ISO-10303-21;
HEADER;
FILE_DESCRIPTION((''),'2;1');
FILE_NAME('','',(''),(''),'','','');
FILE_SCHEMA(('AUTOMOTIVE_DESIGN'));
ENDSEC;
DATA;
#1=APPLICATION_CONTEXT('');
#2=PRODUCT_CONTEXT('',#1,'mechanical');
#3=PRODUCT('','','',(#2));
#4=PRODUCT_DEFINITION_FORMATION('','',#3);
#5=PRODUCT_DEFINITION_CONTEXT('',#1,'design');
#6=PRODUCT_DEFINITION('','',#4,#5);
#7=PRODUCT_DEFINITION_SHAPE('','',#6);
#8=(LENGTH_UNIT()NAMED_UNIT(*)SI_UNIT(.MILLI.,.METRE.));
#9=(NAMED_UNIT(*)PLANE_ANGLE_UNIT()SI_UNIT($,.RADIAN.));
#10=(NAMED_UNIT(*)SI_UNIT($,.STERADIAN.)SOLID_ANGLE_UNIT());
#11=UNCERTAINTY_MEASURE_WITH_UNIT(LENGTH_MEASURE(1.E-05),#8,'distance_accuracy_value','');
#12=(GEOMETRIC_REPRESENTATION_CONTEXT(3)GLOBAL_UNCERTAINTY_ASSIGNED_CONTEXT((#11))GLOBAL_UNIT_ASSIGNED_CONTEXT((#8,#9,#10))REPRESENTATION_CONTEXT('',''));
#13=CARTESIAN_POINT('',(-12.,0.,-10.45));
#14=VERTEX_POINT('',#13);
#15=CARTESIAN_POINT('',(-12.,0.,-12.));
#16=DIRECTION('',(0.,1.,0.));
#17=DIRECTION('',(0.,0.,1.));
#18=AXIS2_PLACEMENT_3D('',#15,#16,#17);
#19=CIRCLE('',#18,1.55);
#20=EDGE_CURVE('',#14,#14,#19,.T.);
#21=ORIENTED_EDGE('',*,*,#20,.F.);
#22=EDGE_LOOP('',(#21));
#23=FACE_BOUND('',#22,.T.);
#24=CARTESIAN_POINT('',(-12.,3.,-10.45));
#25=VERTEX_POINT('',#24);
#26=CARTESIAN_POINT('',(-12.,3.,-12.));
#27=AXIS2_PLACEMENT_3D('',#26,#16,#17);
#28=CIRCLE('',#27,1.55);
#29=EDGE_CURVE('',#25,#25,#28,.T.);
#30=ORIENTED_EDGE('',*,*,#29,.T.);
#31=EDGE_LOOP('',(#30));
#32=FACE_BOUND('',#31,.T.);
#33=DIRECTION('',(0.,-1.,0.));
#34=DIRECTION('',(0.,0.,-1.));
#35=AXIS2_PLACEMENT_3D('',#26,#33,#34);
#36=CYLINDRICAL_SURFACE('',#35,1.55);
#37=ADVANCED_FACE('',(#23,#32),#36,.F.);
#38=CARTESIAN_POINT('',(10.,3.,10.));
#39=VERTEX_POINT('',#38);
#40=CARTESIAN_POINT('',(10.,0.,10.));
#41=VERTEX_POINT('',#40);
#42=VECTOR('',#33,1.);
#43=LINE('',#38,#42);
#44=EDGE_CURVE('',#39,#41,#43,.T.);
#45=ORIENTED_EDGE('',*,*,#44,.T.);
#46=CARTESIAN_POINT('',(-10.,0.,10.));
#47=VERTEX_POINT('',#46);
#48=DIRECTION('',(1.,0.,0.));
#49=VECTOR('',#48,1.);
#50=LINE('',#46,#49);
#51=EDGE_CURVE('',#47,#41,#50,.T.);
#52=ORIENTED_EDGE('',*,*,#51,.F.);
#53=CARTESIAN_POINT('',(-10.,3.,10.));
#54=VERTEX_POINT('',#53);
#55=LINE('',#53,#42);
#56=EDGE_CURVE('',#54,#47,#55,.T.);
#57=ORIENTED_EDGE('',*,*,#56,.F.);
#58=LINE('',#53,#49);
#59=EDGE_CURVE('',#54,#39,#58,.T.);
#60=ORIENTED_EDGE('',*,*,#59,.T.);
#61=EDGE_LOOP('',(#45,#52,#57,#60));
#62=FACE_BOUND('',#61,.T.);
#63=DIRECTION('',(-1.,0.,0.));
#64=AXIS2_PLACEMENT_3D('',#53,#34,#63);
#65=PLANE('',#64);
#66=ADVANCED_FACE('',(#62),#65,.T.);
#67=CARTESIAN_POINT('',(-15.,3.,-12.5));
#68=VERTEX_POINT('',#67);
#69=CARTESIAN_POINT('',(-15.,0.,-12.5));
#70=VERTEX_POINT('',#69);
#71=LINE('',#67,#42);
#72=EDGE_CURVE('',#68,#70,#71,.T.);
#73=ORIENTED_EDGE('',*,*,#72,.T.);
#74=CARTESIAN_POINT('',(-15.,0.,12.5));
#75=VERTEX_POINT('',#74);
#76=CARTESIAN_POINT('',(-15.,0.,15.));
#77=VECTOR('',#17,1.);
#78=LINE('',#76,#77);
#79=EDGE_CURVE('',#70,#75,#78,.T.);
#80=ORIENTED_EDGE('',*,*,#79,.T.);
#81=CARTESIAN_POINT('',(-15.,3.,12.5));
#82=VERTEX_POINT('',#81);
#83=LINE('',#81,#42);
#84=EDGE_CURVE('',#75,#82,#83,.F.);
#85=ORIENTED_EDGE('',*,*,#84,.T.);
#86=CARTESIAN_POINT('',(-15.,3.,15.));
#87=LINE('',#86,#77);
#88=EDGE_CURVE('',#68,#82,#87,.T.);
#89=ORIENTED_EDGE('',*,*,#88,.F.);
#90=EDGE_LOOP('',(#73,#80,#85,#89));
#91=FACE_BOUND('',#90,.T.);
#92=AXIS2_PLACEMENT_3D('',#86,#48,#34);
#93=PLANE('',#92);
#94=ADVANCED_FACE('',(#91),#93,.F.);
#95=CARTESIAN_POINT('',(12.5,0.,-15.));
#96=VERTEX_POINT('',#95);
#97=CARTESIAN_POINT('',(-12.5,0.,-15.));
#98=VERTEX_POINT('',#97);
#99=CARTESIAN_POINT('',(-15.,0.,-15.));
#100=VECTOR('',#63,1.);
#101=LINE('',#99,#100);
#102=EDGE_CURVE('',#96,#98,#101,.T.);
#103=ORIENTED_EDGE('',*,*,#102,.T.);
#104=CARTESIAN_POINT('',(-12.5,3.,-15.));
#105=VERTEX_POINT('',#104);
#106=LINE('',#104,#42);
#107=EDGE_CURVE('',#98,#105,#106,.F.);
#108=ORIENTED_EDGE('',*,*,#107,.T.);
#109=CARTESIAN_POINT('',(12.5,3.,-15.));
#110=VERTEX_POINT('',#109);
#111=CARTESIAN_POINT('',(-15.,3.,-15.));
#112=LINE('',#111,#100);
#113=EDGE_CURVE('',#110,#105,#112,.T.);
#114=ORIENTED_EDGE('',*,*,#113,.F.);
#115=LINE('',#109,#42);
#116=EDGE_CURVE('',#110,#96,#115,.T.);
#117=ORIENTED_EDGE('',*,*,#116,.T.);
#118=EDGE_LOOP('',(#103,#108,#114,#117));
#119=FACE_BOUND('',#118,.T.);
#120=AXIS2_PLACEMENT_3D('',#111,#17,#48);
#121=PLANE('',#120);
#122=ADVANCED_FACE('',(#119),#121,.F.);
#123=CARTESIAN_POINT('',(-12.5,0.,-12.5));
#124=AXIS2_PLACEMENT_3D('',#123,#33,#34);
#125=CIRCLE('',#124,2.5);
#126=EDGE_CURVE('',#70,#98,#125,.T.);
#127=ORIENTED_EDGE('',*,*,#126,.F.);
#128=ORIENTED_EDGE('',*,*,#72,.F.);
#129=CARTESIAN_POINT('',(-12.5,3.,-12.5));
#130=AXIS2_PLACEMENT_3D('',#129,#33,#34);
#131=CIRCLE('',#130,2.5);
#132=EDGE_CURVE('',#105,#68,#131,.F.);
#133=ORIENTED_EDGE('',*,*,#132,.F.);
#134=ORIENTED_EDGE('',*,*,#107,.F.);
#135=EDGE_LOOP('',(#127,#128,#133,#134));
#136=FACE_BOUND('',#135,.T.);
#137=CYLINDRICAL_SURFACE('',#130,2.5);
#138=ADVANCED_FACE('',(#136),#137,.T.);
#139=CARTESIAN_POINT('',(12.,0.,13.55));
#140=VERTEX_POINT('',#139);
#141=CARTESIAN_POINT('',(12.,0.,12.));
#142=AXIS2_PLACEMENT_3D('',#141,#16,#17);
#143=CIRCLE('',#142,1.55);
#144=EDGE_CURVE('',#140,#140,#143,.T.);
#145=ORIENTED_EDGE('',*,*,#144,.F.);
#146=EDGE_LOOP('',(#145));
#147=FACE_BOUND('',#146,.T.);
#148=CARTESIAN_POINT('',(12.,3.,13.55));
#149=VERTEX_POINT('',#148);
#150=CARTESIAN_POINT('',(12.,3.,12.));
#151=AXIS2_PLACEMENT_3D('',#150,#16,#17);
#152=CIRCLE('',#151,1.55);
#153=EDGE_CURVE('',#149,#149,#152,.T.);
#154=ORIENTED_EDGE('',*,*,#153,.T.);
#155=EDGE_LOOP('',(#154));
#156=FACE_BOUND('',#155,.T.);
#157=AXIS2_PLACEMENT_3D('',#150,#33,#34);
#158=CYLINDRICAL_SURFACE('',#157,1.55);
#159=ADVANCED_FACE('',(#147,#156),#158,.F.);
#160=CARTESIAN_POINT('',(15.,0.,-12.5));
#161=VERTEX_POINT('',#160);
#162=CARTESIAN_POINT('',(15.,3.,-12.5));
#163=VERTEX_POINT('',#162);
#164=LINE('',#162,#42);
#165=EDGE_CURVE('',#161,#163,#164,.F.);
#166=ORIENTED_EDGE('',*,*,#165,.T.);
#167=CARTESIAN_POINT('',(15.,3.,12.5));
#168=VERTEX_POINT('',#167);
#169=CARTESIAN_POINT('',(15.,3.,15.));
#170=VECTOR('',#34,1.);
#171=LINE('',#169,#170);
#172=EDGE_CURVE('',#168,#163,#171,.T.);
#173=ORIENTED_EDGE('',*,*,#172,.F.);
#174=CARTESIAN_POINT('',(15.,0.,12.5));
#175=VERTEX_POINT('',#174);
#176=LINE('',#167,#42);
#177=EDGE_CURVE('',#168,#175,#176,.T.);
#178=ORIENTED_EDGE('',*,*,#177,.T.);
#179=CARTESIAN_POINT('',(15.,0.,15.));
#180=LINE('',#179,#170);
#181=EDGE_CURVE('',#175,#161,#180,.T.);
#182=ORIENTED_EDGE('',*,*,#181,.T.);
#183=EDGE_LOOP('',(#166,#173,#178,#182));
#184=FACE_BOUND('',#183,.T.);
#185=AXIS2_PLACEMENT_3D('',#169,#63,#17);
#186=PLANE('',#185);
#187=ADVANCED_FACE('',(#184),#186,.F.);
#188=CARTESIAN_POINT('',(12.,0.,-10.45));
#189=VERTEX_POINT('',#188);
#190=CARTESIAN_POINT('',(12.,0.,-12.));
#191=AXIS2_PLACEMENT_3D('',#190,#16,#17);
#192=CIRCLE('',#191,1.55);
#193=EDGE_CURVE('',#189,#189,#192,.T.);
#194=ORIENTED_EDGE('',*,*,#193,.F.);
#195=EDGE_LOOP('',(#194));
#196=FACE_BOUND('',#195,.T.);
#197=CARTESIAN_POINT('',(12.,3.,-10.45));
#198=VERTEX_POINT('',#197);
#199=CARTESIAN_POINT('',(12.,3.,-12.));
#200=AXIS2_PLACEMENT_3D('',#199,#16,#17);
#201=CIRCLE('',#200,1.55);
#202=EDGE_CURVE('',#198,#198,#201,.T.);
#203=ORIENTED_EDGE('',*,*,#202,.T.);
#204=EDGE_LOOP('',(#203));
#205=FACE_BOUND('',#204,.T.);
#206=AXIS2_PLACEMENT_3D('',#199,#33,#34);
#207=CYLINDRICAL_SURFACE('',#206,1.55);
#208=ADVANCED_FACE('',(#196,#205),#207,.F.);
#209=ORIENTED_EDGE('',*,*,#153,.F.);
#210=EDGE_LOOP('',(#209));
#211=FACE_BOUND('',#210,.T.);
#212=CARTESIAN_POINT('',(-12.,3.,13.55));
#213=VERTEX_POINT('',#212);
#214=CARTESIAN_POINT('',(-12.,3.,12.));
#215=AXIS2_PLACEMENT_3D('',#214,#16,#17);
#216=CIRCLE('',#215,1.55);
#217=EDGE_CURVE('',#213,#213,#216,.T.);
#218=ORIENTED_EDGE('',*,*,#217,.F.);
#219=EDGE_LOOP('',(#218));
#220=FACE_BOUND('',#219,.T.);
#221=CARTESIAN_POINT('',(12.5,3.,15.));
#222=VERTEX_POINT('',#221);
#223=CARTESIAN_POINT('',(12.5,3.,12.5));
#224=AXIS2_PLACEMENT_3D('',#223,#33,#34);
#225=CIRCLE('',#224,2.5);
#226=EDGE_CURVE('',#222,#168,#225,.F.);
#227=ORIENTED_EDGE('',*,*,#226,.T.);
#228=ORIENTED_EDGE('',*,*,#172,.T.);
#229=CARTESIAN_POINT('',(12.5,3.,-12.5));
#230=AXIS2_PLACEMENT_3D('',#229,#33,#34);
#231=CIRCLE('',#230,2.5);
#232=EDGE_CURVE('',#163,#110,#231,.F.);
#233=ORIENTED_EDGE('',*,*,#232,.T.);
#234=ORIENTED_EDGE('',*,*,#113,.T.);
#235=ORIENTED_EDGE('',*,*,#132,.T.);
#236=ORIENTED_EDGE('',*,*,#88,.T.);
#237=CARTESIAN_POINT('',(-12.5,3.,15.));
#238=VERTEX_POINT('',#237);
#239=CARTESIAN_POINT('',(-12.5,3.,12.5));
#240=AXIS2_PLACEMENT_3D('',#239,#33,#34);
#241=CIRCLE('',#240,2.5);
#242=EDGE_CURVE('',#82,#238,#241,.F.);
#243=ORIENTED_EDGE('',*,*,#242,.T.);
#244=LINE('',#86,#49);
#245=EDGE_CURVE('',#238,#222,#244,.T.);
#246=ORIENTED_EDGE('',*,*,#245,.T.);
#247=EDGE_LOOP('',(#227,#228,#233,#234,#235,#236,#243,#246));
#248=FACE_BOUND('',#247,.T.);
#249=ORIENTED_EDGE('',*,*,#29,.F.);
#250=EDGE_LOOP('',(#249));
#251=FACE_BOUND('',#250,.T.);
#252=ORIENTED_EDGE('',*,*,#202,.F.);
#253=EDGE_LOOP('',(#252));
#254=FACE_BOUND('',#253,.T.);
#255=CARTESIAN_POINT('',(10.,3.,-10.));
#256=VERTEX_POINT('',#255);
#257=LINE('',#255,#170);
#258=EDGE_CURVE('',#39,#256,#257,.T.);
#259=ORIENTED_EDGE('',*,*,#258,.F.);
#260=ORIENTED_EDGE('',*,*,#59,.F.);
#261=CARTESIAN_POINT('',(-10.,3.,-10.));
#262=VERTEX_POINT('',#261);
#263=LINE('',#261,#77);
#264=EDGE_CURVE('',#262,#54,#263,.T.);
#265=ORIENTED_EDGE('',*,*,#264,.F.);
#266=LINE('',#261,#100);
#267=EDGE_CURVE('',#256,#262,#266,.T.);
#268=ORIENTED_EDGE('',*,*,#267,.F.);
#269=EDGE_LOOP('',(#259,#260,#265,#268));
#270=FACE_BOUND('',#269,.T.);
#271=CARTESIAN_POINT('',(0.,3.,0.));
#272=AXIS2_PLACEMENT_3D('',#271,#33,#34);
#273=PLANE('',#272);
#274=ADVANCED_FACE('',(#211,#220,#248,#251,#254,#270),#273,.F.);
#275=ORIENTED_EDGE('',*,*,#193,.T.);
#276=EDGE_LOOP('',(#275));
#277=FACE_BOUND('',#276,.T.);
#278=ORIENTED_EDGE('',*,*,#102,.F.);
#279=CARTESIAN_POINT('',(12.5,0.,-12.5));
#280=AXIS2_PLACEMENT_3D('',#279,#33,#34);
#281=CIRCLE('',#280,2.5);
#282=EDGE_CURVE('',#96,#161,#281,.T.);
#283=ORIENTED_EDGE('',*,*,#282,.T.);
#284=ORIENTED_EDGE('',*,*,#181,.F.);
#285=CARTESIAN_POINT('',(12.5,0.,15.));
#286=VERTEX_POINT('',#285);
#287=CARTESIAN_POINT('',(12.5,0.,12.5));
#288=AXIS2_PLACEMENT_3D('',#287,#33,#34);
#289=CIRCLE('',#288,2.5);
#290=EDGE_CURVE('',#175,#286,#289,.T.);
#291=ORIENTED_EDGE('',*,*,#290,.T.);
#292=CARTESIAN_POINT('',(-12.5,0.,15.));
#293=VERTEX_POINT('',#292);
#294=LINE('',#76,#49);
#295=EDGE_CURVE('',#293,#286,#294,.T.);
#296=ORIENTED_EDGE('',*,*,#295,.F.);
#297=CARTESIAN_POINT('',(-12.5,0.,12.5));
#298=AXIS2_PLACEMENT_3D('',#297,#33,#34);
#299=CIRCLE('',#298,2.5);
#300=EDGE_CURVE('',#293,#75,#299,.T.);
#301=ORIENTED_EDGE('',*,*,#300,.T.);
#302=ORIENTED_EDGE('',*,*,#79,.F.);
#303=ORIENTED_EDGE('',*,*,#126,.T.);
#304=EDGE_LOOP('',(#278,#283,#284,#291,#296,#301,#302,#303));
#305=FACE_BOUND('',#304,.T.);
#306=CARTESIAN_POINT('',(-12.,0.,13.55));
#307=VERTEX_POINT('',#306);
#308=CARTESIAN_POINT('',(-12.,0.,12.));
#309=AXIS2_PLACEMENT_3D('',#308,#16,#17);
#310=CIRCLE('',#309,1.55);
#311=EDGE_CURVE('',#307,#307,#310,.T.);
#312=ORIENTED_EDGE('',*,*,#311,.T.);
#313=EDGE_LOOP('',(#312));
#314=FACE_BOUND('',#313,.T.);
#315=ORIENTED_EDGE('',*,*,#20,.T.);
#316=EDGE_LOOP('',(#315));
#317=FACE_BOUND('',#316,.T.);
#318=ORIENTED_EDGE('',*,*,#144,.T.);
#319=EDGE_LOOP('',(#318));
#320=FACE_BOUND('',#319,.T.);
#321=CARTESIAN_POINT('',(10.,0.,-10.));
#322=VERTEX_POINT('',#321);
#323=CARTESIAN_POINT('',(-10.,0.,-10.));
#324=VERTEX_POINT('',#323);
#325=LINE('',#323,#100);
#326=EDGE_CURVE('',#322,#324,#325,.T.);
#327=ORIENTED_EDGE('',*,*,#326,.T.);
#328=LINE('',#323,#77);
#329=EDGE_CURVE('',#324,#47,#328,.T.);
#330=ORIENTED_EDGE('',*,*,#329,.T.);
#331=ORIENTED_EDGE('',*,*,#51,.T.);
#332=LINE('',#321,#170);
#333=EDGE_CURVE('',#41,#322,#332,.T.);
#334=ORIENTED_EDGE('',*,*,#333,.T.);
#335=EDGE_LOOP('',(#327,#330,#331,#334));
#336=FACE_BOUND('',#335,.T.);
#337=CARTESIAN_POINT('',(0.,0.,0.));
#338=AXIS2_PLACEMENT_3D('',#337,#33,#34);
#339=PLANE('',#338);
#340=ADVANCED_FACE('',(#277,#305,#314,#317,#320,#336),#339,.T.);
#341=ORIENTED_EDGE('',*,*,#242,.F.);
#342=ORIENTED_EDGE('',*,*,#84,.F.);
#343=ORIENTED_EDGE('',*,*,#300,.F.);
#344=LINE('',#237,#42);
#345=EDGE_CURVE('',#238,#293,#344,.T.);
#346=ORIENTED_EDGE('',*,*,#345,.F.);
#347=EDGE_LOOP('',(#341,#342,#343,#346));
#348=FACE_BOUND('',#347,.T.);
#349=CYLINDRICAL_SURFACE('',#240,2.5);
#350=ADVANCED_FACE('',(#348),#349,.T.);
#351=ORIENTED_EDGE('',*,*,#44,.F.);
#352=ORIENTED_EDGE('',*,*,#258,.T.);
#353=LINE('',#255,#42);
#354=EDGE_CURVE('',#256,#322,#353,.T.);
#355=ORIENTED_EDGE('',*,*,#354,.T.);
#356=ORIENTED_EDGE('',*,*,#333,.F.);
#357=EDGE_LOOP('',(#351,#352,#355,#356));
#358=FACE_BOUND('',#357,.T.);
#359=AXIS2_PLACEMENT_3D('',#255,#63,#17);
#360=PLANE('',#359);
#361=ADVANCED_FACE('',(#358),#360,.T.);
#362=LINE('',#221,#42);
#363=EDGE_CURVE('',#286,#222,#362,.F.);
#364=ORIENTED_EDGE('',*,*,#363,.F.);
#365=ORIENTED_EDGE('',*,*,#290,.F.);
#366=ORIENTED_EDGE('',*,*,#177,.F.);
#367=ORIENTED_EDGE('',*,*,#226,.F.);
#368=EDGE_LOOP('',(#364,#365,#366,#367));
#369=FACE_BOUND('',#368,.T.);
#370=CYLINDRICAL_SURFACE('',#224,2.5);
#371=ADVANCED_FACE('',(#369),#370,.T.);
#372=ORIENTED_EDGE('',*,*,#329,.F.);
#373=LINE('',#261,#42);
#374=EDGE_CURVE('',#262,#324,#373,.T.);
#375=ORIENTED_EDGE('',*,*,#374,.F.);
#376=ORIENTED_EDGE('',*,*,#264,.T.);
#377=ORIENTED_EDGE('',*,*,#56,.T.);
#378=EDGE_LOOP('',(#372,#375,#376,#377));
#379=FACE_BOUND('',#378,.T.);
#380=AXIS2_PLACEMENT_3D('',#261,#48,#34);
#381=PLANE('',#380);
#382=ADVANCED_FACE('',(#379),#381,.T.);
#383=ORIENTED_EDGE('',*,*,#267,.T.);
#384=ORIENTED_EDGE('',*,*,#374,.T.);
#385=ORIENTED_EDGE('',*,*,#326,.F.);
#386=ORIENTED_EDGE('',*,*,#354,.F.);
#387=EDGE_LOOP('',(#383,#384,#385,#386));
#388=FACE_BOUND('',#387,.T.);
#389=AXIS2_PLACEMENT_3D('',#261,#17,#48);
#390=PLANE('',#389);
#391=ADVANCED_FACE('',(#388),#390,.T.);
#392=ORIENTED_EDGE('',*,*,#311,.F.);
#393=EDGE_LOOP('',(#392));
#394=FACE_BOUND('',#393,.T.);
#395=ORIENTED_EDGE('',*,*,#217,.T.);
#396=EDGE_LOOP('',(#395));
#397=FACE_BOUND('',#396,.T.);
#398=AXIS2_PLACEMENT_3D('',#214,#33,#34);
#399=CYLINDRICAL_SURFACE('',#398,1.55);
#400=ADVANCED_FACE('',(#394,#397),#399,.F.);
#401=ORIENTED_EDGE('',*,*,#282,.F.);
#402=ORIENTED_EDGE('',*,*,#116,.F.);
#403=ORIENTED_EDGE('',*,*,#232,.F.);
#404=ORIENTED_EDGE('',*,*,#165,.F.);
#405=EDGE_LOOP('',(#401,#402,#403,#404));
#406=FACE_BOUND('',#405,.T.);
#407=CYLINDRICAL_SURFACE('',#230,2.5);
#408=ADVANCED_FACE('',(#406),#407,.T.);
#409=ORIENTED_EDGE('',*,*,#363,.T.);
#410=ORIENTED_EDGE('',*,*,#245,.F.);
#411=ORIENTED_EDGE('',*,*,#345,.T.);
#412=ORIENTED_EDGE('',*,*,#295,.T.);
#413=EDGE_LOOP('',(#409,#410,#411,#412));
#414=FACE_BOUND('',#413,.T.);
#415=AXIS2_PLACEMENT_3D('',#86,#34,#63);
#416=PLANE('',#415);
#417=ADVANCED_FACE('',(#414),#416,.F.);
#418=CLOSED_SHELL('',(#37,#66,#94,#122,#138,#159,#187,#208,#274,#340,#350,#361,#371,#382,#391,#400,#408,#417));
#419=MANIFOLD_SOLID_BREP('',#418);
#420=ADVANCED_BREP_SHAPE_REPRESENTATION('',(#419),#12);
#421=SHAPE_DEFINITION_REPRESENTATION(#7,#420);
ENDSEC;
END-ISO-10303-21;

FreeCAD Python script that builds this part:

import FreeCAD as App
import Part
import Sketcher

V = App.Vector


def edges_at(feature, points):
    """Names of the edges that pass closest to the given points."""
    edges = feature.Shape.Edges
    near = lambda p: min(range(len(edges)), key=lambda i: edges[i].distToShape(Part.Vertex(*p))[0])
    return sorted({f"Edge{near(p) + 1}" for p in points})


def add_polygon(sketch, points):
    """Adds a closed chain of lines whose ends are joined by coincident constraints."""
    first, n = sketch.GeometryCount, len(points)
    for a, b in zip(points, points[1:] + points[:1]):
        sketch.addGeometry(Part.LineSegment(App.Vector(*a, 0), App.Vector(*b, 0)), False)
    for i in range(n):
        sketch.addConstraint(Sketcher.Constraint("Coincident", first + i, 2, first + (i + 1) % n, 1))

doc = App.newDocument("Part")
body = doc.addObject("PartDesign::Body", "Body")

sketch1 = body.newObject("Sketcher::SketchObject", "Sketch")
sketch1.AttachmentSupport = (doc.getObject("XZ_Plane"), [""])
sketch1.MapMode = "FlatFace"
add_polygon(sketch1, [(-15, -15), (-15, 15), (15, 15), (15, -15)])
sketch1.addGeometry(Part.Circle(V(-12, 12, 0), V(0, 0, 1), 1.55), False)
sketch1.addGeometry(Part.Circle(V(12, 12, 0), V(0, 0, 1), 1.55), False)
sketch1.addGeometry(Part.Circle(V(-12, -12, 0), V(0, 0, 1), 1.55), False)
add_polygon(sketch1, [(10, 10), (-10, 10), (-10, -10), (10, -10)])
sketch1.addGeometry(Part.Circle(V(12, -12, 0), V(0, 0, 1), 1.55), False)
sketch1.addConstraint([
    Sketcher.Constraint("Vertical", 0),
    Sketcher.Constraint("Horizontal", 1),
    Sketcher.Constraint("Vertical", 2),
    Sketcher.Constraint("Horizontal", 3),
    Sketcher.Constraint("Horizontal", 7),
    Sketcher.Constraint("Vertical", 8),
    Sketcher.Constraint("Horizontal", 9),
    Sketcher.Constraint("Vertical", 10),
    Sketcher.Constraint("Equal", 4, 5),
    Sketcher.Constraint("Equal", 5, 6),
    Sketcher.Constraint("Equal", 6, 11),
    Sketcher.Constraint("Symmetric", 5, 3, 6, 3, -1, 1),
    Sketcher.Constraint("Symmetric", 4, 3, 11, 3, -1, 1),
    Sketcher.Constraint("Symmetric", 0, 2, 2, 2, -1, 1),
    Sketcher.Constraint("Symmetric", 7, 2, 9, 2, -1, 1),
    Sketcher.Constraint("Symmetric", 4, 3, 5, 3, -2),
    Sketcher.Constraint("Equal", 3, 0),
    Sketcher.Constraint("Equal", 9, 8),
    Sketcher.Constraint("Diameter", 4, 3.1),
    Sketcher.Constraint("DistanceX", 1, 1, 1, 2, 30.0),
    Sketcher.Constraint("DistanceX", 7, 2, 7, 1, 20.0),
    Sketcher.Constraint("DistanceX", 4, 3, -1, 1, 12.0),
    Sketcher.Constraint("DistanceY", -1, 1, 4, 3, 12.0),
])
pad1 = body.newObject("PartDesign::Pad", "Pad")
pad1.Profile = sketch1
pad1.Length = 3
pad1.Reversed = True
doc.recompute()

fillet = body.newObject("PartDesign::Fillet", "Fillet")
fillet.Base = (pad1, edges_at(pad1, [
    (15, 1.5, 15),
    (-15, 1.5, 15),
    (-15, 1.5, -15),
    (15, 1.5, -15),
]))
fillet.Radius = 2.5

doc.recompute()
